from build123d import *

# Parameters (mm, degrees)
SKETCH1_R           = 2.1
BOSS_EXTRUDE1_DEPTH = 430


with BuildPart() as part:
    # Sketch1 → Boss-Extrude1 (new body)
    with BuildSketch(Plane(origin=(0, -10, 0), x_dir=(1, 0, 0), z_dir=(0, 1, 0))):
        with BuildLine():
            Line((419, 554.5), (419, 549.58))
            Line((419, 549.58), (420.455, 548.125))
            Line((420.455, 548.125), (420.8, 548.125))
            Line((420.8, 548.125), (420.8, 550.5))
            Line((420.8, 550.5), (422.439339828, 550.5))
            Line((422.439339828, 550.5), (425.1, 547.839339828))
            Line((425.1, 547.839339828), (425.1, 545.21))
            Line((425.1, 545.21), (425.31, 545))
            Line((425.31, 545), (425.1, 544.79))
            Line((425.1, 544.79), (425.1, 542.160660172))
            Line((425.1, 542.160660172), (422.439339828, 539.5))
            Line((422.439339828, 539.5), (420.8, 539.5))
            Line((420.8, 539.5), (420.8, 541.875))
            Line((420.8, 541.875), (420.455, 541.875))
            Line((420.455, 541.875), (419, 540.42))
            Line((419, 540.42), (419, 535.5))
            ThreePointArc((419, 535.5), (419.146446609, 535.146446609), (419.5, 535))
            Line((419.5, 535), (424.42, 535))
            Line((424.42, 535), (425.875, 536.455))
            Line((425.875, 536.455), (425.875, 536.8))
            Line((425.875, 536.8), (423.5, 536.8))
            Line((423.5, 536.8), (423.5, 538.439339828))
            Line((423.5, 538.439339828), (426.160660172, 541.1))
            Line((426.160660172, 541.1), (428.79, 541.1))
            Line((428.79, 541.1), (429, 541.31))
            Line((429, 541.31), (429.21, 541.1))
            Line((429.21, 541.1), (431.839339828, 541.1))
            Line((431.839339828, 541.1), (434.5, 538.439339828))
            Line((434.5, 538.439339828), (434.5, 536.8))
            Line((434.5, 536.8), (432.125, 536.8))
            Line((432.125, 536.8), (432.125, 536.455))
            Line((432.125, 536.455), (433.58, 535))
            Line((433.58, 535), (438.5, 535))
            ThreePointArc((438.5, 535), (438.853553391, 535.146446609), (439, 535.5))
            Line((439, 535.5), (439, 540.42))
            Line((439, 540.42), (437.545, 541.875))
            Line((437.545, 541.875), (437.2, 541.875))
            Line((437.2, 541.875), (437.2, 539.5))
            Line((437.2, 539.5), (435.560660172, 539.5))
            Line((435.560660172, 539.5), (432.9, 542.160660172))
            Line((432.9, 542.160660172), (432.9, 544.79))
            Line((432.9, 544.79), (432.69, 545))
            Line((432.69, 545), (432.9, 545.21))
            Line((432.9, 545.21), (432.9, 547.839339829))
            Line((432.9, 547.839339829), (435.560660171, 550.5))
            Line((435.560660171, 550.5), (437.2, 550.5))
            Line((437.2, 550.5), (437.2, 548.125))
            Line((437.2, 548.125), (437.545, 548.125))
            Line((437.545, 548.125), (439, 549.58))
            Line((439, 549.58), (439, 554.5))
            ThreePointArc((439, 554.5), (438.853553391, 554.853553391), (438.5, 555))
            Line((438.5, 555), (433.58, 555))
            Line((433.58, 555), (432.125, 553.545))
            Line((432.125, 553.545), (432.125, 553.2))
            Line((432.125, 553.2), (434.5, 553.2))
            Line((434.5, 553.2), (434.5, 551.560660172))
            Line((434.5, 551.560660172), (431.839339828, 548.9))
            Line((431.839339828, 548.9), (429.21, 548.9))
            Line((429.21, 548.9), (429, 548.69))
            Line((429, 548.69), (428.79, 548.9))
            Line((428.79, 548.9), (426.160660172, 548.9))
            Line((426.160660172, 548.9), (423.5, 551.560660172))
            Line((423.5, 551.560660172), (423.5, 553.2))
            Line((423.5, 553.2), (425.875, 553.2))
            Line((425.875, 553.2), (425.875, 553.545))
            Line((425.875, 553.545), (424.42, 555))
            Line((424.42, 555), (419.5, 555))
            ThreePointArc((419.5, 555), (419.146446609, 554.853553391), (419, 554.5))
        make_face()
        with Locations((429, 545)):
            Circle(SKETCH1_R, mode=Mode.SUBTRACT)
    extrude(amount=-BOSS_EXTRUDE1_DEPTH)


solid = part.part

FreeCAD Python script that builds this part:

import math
import FreeCAD as App
import Part
import Sketcher
Q = App.Units.Quantity

doc = App.newDocument("Part")
body = doc.addObject("PartDesign::Body", "Body")

sketch1 = doc.addObject("Sketcher::SketchObject", "Sketch")
body.addObject(sketch1)
sketch1.AttachmentSupport = (doc.XZ_Plane, [""])
sketch1.MapMode = "FlatFace"
sketch1.AttachmentOffset = App.Placement(App.Vector(0, 0, 10), App.Rotation())
sketch1.addGeometry(Part.LineSegment(App.Vector(419, -554.5, 0), App.Vector(419, -549.58, 0)), False)
sketch1.addGeometry(Part.LineSegment(App.Vector(419, -549.58, 0), App.Vector(420.455, -548.125, 0)), False)
sketch1.addGeometry(Part.LineSegment(App.Vector(420.455, -548.125, 0), App.Vector(420.8, -548.125, 0)), False)
sketch1.addGeometry(Part.LineSegment(App.Vector(420.8, -548.125, 0), App.Vector(420.8, -550.5, 0)), False)
sketch1.addGeometry(Part.LineSegment(App.Vector(420.8, -550.5, 0), App.Vector(422.43934, -550.5, 0)), False)
sketch1.addGeometry(Part.LineSegment(App.Vector(422.43934, -550.5, 0), App.Vector(425.1, -547.83934, 0)), False)
sketch1.addGeometry(Part.LineSegment(App.Vector(425.1, -547.83934, 0), App.Vector(425.1, -545.21, 0)), False)
sketch1.addGeometry(Part.LineSegment(App.Vector(425.1, -545.21, 0), App.Vector(425.31, -545, 0)), False)
sketch1.addGeometry(Part.LineSegment(App.Vector(425.31, -545, 0), App.Vector(425.1, -544.79, 0)), False)
sketch1.addGeometry(Part.LineSegment(App.Vector(425.1, -544.79, 0), App.Vector(425.1, -542.16066, 0)), False)
sketch1.addGeometry(Part.LineSegment(App.Vector(425.1, -542.16066, 0), App.Vector(422.43934, -539.5, 0)), False)
sketch1.addGeometry(Part.LineSegment(App.Vector(422.43934, -539.5, 0), App.Vector(420.8, -539.5, 0)), False)
sketch1.addGeometry(Part.LineSegment(App.Vector(420.8, -539.5, 0), App.Vector(420.8, -541.875, 0)), False)
sketch1.addGeometry(Part.LineSegment(App.Vector(420.8, -541.875, 0), App.Vector(420.455, -541.875, 0)), False)
sketch1.addGeometry(Part.LineSegment(App.Vector(420.455, -541.875, 0), App.Vector(419, -540.42, 0)), False)
sketch1.addGeometry(Part.LineSegment(App.Vector(419, -540.42, 0), App.Vector(419, -535.5, 0)), False)
sketch1.addGeometry(Part.ArcOfCircle(Part.Circle(App.Vector(419.5, -535.5, 0), App.Vector(0, 0, 1), 0.5), math.radians(90), math.radians(180)), False)
sketch1.addGeometry(Part.LineSegment(App.Vector(419.5, -535, 0), App.Vector(424.42, -535, 0)), False)
sketch1.addGeometry(Part.LineSegment(App.Vector(424.42, -535, 0), App.Vector(425.875, -536.455, 0)), False)
sketch1.addGeometry(Part.LineSegment(App.Vector(425.875, -536.455, 0), App.Vector(425.875, -536.8, 0)), False)
sketch1.addGeometry(Part.LineSegment(App.Vector(425.875, -536.8, 0), App.Vector(423.5, -536.8, 0)), False)
sketch1.addGeometry(Part.LineSegment(App.Vector(423.5, -536.8, 0), App.Vector(423.5, -538.43934, 0)), False)
sketch1.addGeometry(Part.LineSegment(App.Vector(423.5, -538.43934, 0), App.Vector(426.16066, -541.1, 0)), False)
sketch1.addGeometry(Part.LineSegment(App.Vector(426.16066, -541.1, 0), App.Vector(428.79, -541.1, 0)), False)
sketch1.addGeometry(Part.LineSegment(App.Vector(428.79, -541.1, 0), App.Vector(429, -541.31, 0)), False)
sketch1.addGeometry(Part.LineSegment(App.Vector(429, -541.31, 0), App.Vector(429.21, -541.1, 0)), False)
sketch1.addGeometry(Part.LineSegment(App.Vector(429.21, -541.1, 0), App.Vector(431.83934, -541.1, 0)), False)
sketch1.addGeometry(Part.LineSegment(App.Vector(431.83934, -541.1, 0), App.Vector(434.5, -538.43934, 0)), False)
sketch1.addGeometry(Part.LineSegment(App.Vector(434.5, -538.43934, 0), App.Vector(434.5, -536.8, 0)), False)
sketch1.addGeometry(Part.LineSegment(App.Vector(434.5, -536.8, 0), App.Vector(432.125, -536.8, 0)), False)
sketch1.addGeometry(Part.LineSegment(App.Vector(432.125, -536.8, 0), App.Vector(432.125, -536.455, 0)), False)
sketch1.addGeometry(Part.LineSegment(App.Vector(432.125, -536.455, 0), App.Vector(433.58, -535, 0)), False)
sketch1.addGeometry(Part.LineSegment(App.Vector(433.58, -535, 0), App.Vector(438.5, -535, 0)), False)
sketch1.addGeometry(Part.ArcOfCircle(Part.Circle(App.Vector(438.5, -535.5, 0), App.Vector(0, 0, 1), 0.5), math.radians(0), math.radians(90)), False)
sketch1.addGeometry(Part.LineSegment(App.Vector(439, -535.5, 0), App.Vector(439, -540.42, 0)), False)
sketch1.addGeometry(Part.LineSegment(App.Vector(439, -540.42, 0), App.Vector(437.545, -541.875, 0)), False)
sketch1.addGeometry(Part.LineSegment(App.Vector(437.545, -541.875, 0), App.Vector(437.2, -541.875, 0)), False)
sketch1.addGeometry(Part.LineSegment(App.Vector(437.2, -541.875, 0), App.Vector(437.2, -539.5, 0)), False)
sketch1.addGeometry(Part.LineSegment(App.Vector(437.2, -539.5, 0), App.Vector(435.56066, -539.5, 0)), False)
sketch1.addGeometry(Part.LineSegment(App.Vector(435.56066, -539.5, 0), App.Vector(432.9, -542.16066, 0)), False)
sketch1.addGeometry(Part.LineSegment(App.Vector(432.9, -542.16066, 0), App.Vector(432.9, -544.79, 0)), False)
sketch1.addGeometry(Part.LineSegment(App.Vector(432.9, -544.79, 0), App.Vector(432.69, -545, 0)), False)
sketch1.addGeometry(Part.LineSegment(App.Vector(432.69, -545, 0), App.Vector(432.9, -545.21, 0)), False)
sketch1.addGeometry(Part.LineSegment(App.Vector(432.9, -545.21, 0), App.Vector(432.9, -547.83934, 0)), False)
sketch1.addGeometry(Part.LineSegment(App.Vector(432.9, -547.83934, 0), App.Vector(435.56066, -550.5, 0)), False)
sketch1.addGeometry(Part.LineSegment(App.Vector(435.56066, -550.5, 0), App.Vector(437.2, -550.5, 0)), False)
sketch1.addGeometry(Part.LineSegment(App.Vector(437.2, -550.5, 0), App.Vector(437.2, -548.125, 0)), False)
sketch1.addGeometry(Part.LineSegment(App.Vector(437.2, -548.125, 0), App.Vector(437.545, -548.125, 0)), False)
sketch1.addGeometry(Part.LineSegment(App.Vector(437.545, -548.125, 0), App.Vector(439, -549.58, 0)), False)
sketch1.addGeometry(Part.LineSegment(App.Vector(439, -549.58, 0), App.Vector(439, -554.5, 0)), False)
sketch1.addGeometry(Part.ArcOfCircle(Part.Circle(App.Vector(438.5, -554.5, 0), App.Vector(0, 0, 1), 0.5), math.radians(-90), math.radians(0)), False)
sketch1.addGeometry(Part.LineSegment(App.Vector(438.5, -555, 0), App.Vector(433.58, -555, 0)), False)
sketch1.addGeometry(Part.LineSegment(App.Vector(433.58, -555, 0), App.Vector(432.125, -553.545, 0)), False)
sketch1.addGeometry(Part.LineSegment(App.Vector(432.125, -553.545, 0), App.Vector(432.125, -553.2, 0)), False)
sketch1.addGeometry(Part.LineSegment(App.Vector(432.125, -553.2, 0), App.Vector(434.5, -553.2, 0)), False)
sketch1.addGeometry(Part.LineSegment(App.Vector(434.5, -553.2, 0), App.Vector(434.5, -551.56066, 0)), False)
sketch1.addGeometry(Part.LineSegment(App.Vector(434.5, -551.56066, 0), App.Vector(431.83934, -548.9, 0)), False)
sketch1.addGeometry(Part.LineSegment(App.Vector(431.83934, -548.9, 0), App.Vector(429.21, -548.9, 0)), False)
sketch1.addGeometry(Part.LineSegment(App.Vector(429.21, -548.9, 0), App.Vector(429, -548.69, 0)), False)
sketch1.addGeometry(Part.LineSegment(App.Vector(429, -548.69, 0), App.Vector(428.79, -548.9, 0)), False)
sketch1.addGeometry(Part.LineSegment(App.Vector(428.79, -548.9, 0), App.Vector(426.16066, -548.9, 0)), False)
sketch1.addGeometry(Part.LineSegment(App.Vector(426.16066, -548.9, 0), App.Vector(423.5, -551.56066, 0)), False)
sketch1.addGeometry(Part.LineSegment(App.Vector(423.5, -551.56066, 0), App.Vector(423.5, -553.2, 0)), False)
sketch1.addGeometry(Part.LineSegment(App.Vector(423.5, -553.2, 0), App.Vector(425.875, -553.2, 0)), False)
sketch1.addGeometry(Part.LineSegment(App.Vector(425.875, -553.2, 0), App.Vector(425.875, -553.545, 0)), False)
sketch1.addGeometry(Part.LineSegment(App.Vector(425.875, -553.545, 0), App.Vector(424.42, -555, 0)), False)
sketch1.addGeometry(Part.LineSegment(App.Vector(424.42, -555, 0), App.Vector(419.5, -555, 0)), False)
sketch1.addGeometry(Part.ArcOfCircle(Part.Circle(App.Vector(419.5, -554.5, 0), App.Vector(0, 0, 1), 0.5), math.radians(180), math.radians(270)), False)
sketch1.addGeometry(Part.Circle(App.Vector(429, -545, 0), App.Vector(0, 0, 1), 2.1), False)
sketch1.addConstraint(Sketcher.Constraint("Coincident", 0, 2, 1, 1))
sketch1.addConstraint(Sketcher.Constraint("Coincident", 1, 2, 2, 1))
sketch1.addConstraint(Sketcher.Constraint("Coincident", 2, 2, 3, 1))
sketch1.addConstraint(Sketcher.Constraint("Coincident", 3, 2, 4, 1))
sketch1.addConstraint(Sketcher.Constraint("Coincident", 4, 2, 5, 1))
sketch1.addConstraint(Sketcher.Constraint("Coincident", 5, 2, 6, 1))
sketch1.addConstraint(Sketcher.Constraint("Coincident", 6, 2, 7, 1))
sketch1.addConstraint(Sketcher.Constraint("Coincident", 7, 2, 8, 1))
sketch1.addConstraint(Sketcher.Constraint("Coincident", 8, 2, 9, 1))
sketch1.addConstraint(Sketcher.Constraint("Coincident", 9, 2, 10, 1))
sketch1.addConstraint(Sketcher.Constraint("Coincident", 10, 2, 11, 1))
sketch1.addConstraint(Sketcher.Constraint("Coincident", 11, 2, 12, 1))
sketch1.addConstraint(Sketcher.Constraint("Coincident", 12, 2, 13, 1))
sketch1.addConstraint(Sketcher.Constraint("Coincident", 13, 2, 14, 1))
sketch1.addConstraint(Sketcher.Constraint("Coincident", 14, 2, 15, 1))
sketch1.addConstraint(Sketcher.Constraint("Tangent", 15, 2, 16, 2))
sketch1.addConstraint(Sketcher.Constraint("Tangent", 16, 1, 17, 1))
sketch1.addConstraint(Sketcher.Constraint("Coincident", 17, 2, 18, 1))
sketch1.addConstraint(Sketcher.Constraint("Coincident", 18, 2, 19, 1))
sketch1.addConstraint(Sketcher.Constraint("Coincident", 19, 2, 20, 1))
sketch1.addConstraint(Sketcher.Constraint("Coincident", 20, 2, 21, 1))
sketch1.addConstraint(Sketcher.Constraint("Coincident", 21, 2, 22, 1))
sketch1.addConstraint(Sketcher.Constraint("Coincident", 22, 2, 23, 1))
sketch1.addConstraint(Sketcher.Constraint("Coincident", 23, 2, 24, 1))
sketch1.addConstraint(Sketcher.Constraint("Coincident", 24, 2, 25, 1))
sketch1.addConstraint(Sketcher.Constraint("Coincident", 25, 2, 26, 1))
sketch1.addConstraint(Sketcher.Constraint("Coincident", 26, 2, 27, 1))
sketch1.addConstraint(Sketcher.Constraint("Coincident", 27, 2, 28, 1))
sketch1.addConstraint(Sketcher.Constraint("Coincident", 28, 2, 29, 1))
sketch1.addConstraint(Sketcher.Constraint("Coincident", 29, 2, 30, 1))
sketch1.addConstraint(Sketcher.Constraint("Coincident", 30, 2, 31, 1))
sketch1.addConstraint(Sketcher.Constraint("Coincident", 31, 2, 32, 1))
sketch1.addConstraint(Sketcher.Constraint("Tangent", 32, 2, 33, 2))
sketch1.addConstraint(Sketcher.Constraint("Tangent", 33, 1, 34, 1))
sketch1.addConstraint(Sketcher.Constraint("Coincident", 34, 2, 35, 1))
sketch1.addConstraint(Sketcher.Constraint("Coincident", 35, 2, 36, 1))
sketch1.addConstraint(Sketcher.Constraint("Coincident", 36, 2, 37, 1))
sketch1.addConstraint(Sketcher.Constraint("Coincident", 37, 2, 38, 1))
sketch1.addConstraint(Sketcher.Constraint("Coincident", 38, 2, 39, 1))
sketch1.addConstraint(Sketcher.Constraint("Coincident", 39, 2, 40, 1))
sketch1.addConstraint(Sketcher.Constraint("Coincident", 40, 2, 41, 1))
sketch1.addConstraint(Sketcher.Constraint("Coincident", 41, 2, 42, 1))
sketch1.addConstraint(Sketcher.Constraint("Coincident", 42, 2, 43, 1))
sketch1.addConstraint(Sketcher.Constraint("Coincident", 43, 2, 44, 1))
sketch1.addConstraint(Sketcher.Constraint("Coincident", 44, 2, 45, 1))
sketch1.addConstraint(Sketcher.Constraint("Coincident", 45, 2, 46, 1))
sketch1.addConstraint(Sketcher.Constraint("Coincident", 46, 2, 47, 1))
sketch1.addConstraint(Sketcher.Constraint("Coincident", 47, 2, 48, 1))
sketch1.addConstraint(Sketcher.Constraint("Coincident", 48, 2, 49, 1))
sketch1.addConstraint(Sketcher.Constraint("Tangent", 49, 2, 50, 2))
sketch1.addConstraint(Sketcher.Constraint("Tangent", 50, 1, 51, 1))
sketch1.addConstraint(Sketcher.Constraint("Coincident", 51, 2, 52, 1))
sketch1.addConstraint(Sketcher.Constraint("Coincident", 52, 2, 53, 1))
sketch1.addConstraint(Sketcher.Constraint("Coincident", 53, 2, 54, 1))
sketch1.addConstraint(Sketcher.Constraint("Coincident", 54, 2, 55, 1))
sketch1.addConstraint(Sketcher.Constraint("Coincident", 55, 2, 56, 1))
sketch1.addConstraint(Sketcher.Constraint("Coincident", 56, 2, 57, 1))
sketch1.addConstraint(Sketcher.Constraint("Coincident", 57, 2, 58, 1))
sketch1.addConstraint(Sketcher.Constraint("Coincident", 58, 2, 59, 1))
sketch1.addConstraint(Sketcher.Constraint("Coincident", 59, 2, 60, 1))
sketch1.addConstraint(Sketcher.Constraint("Coincident", 60, 2, 61, 1))
sketch1.addConstraint(Sketcher.Constraint("Coincident", 61, 2, 62, 1))
sketch1.addConstraint(Sketcher.Constraint("Coincident", 62, 2, 63, 1))
sketch1.addConstraint(Sketcher.Constraint("Coincident", 63, 2, 64, 1))
sketch1.addConstraint(Sketcher.Constraint("Coincident", 64, 2, 65, 1))
sketch1.addConstraint(Sketcher.Constraint("Coincident", 65, 2, 66, 1))
sketch1.addConstraint(Sketcher.Constraint("Tangent", 66, 2, 67, 2))
sketch1.addConstraint(Sketcher.Constraint("Tangent", 67, 1, 0, 1))
sketch1.addConstraint(Sketcher.Constraint("Vertical", 0))
sketch1.addConstraint(Sketcher.Constraint("Horizontal", 2))
sketch1.addConstraint(Sketcher.Constraint("Vertical", 3))
sketch1.addConstraint(Sketcher.Constraint("Horizontal", 4))
sketch1.addConstraint(Sketcher.Constraint("Vertical", 6))
sketch1.addConstraint(Sketcher.Constraint("Vertical", 9))
sketch1.addConstraint(Sketcher.Constraint("Horizontal", 11))
sketch1.addConstraint(Sketcher.Constraint("Vertical", 12))
sketch1.addConstraint(Sketcher.Constraint("Horizontal", 13))
sketch1.addConstraint(Sketcher.Constraint("Vertical", 15))
sketch1.addConstraint(Sketcher.Constraint("Horizontal", 17))
sketch1.addConstraint(Sketcher.Constraint("Vertical", 19))
sketch1.addConstraint(Sketcher.Constraint("Horizontal", 20))
sketch1.addConstraint(Sketcher.Constraint("Vertical", 21))
sketch1.addConstraint(Sketcher.Constraint("Horizontal", 23))
sketch1.addConstraint(Sketcher.Constraint("Horizontal", 26))
sketch1.addConstraint(Sketcher.Constraint("Vertical", 28))
sketch1.addConstraint(Sketcher.Constraint("Horizontal", 29))
sketch1.addConstraint(Sketcher.Constraint("Vertical", 30))
sketch1.addConstraint(Sketcher.Constraint("Horizontal", 32))
sketch1.addConstraint(Sketcher.Constraint("Vertical", 34))
sketch1.addConstraint(Sketcher.Constraint("Horizontal", 36))
sketch1.addConstraint(Sketcher.Constraint("Vertical", 37))
sketch1.addConstraint(Sketcher.Constraint("Horizontal", 38))
sketch1.addConstraint(Sketcher.Constraint("Vertical", 40))
sketch1.addConstraint(Sketcher.Constraint("Vertical", 43))
sketch1.addConstraint(Sketcher.Constraint("Horizontal", 45))
sketch1.addConstraint(Sketcher.Constraint("Vertical", 46))
sketch1.addConstraint(Sketcher.Constraint("Horizontal", 47))
sketch1.addConstraint(Sketcher.Constraint("Vertical", 49))
sketch1.addConstraint(Sketcher.Constraint("Horizontal", 51))
sketch1.addConstraint(Sketcher.Constraint("Vertical", 53))
sketch1.addConstraint(Sketcher.Constraint("Horizontal", 54))
sketch1.addConstraint(Sketcher.Constraint("Vertical", 55))
sketch1.addConstraint(Sketcher.Constraint("Horizontal", 57))
sketch1.addConstraint(Sketcher.Constraint("Horizontal", 60))
sketch1.addConstraint(Sketcher.Constraint("Vertical", 62))
sketch1.addConstraint(Sketcher.Constraint("Horizontal", 63))
sketch1.addConstraint(Sketcher.Constraint("Vertical", 64))
sketch1.addConstraint(Sketcher.Constraint("Horizontal", 66))
sketch1.addConstraint(Sketcher.Constraint("Equal", 16, 33))
sketch1.addConstraint(Sketcher.Constraint("Equal", 33, 50))
sketch1.addConstraint(Sketcher.Constraint("Equal", 50, 67))
sketch1.addConstraint(Sketcher.Constraint("Parallel", 1, 5))
sketch1.addConstraint(Sketcher.Constraint("Parallel", 5, 7))
sketch1.addConstraint(Sketcher.Constraint("Perpendicular", 7, 8))
sketch1.addConstraint(Sketcher.Constraint("Parallel", 8, 10))
sketch1.addConstraint(Sketcher.Constraint("Parallel", 10, 14))
sketch1.addConstraint(Sketcher.Constraint("Parallel", 14, 18))
sketch1.addConstraint(Sketcher.Constraint("Parallel", 18, 22))
sketch1.addConstraint(Sketcher.Constraint("Parallel", 22, 24))
sketch1.addConstraint(Sketcher.Constraint("Perpendicular", 24, 25))
sketch1.addConstraint(Sketcher.Constraint("Parallel", 25, 27))
sketch1.addConstraint(Sketcher.Constraint("Parallel", 27, 31))
sketch1.addConstraint(Sketcher.Constraint("Parallel", 31, 35))
sketch1.addConstraint(Sketcher.Constraint("Parallel", 35, 39))
sketch1.addConstraint(Sketcher.Constraint("Parallel", 39, 41))
sketch1.addConstraint(Sketcher.Constraint("Perpendicular", 41, 42))
sketch1.addConstraint(Sketcher.Constraint("Parallel", 42, 44))
sketch1.addConstraint(Sketcher.Constraint("Parallel", 44, 48))
sketch1.addConstraint(Sketcher.Constraint("Parallel", 48, 52))
sketch1.addConstraint(Sketcher.Constraint("Parallel", 52, 56))
sketch1.addConstraint(Sketcher.Constraint("Parallel", 56, 58))
sketch1.addConstraint(Sketcher.Constraint("Perpendicular", 58, 59))
sketch1.addConstraint(Sketcher.Constraint("Parallel", 59, 61))
sketch1.addConstraint(Sketcher.Constraint("Parallel", 61, 65))
sketch1.addConstraint(Sketcher.Constraint("Horizontal", 16, 3, 33, 3))
sketch1.addConstraint(Sketcher.Constraint("Horizontal", 50, 3, 67, 3))
sketch1.addConstraint(Sketcher.Constraint("Horizontal", 68, 3, 7, 2))
sketch1.addConstraint(Sketcher.Constraint("Horizontal", 23, 2, 25, 2))
sketch1.addConstraint(Sketcher.Constraint("Horizontal", 21, 2, 27, 2))
sketch1.addConstraint(Sketcher.Constraint("Horizontal", 20, 2, 28, 2))
sketch1.addConstraint(Sketcher.Constraint("Horizontal", 18, 2, 30, 2))
sketch1.addConstraint(Sketcher.Constraint("Horizontal", 14, 2, 34, 2))
sketch1.addConstraint(Sketcher.Constraint("Horizontal", 13, 2, 35, 2))
sketch1.addConstraint(Sketcher.Constraint("Horizontal", 11, 2, 37, 2))
sketch1.addConstraint(Sketcher.Constraint("Horizontal", 9, 2, 39, 2))
sketch1.addConstraint(Sketcher.Constraint("Horizontal", 8, 2, 40, 2))
sketch1.addConstraint(Sketcher.Constraint("Horizontal", 7, 2, 41, 2))
sketch1.addConstraint(Sketcher.Constraint("Horizontal", 6, 2, 42, 2))
sketch1.addConstraint(Sketcher.Constraint("Horizontal", 5, 2, 43, 2))
sketch1.addConstraint(Sketcher.Constraint("Horizontal", 4, 2, 44, 2))
sketch1.addConstraint(Sketcher.Constraint("Horizontal", 2, 2, 46, 2))
sketch1.addConstraint(Sketcher.Constraint("Horizontal", 0, 2, 48, 2))
sketch1.addConstraint(Sketcher.Constraint("Horizontal", 57, 2, 59, 2))
sketch1.addConstraint(Sketcher.Constraint("Horizontal", 55, 2, 61, 2))
sketch1.addConstraint(Sketcher.Constraint("Horizontal", 54, 2, 62, 2))
sketch1.addConstraint(Sketcher.Constraint("Horizontal", 52, 2, 64, 2))
sketch1.addConstraint(Sketcher.Constraint("Vertical", 33, 3, 50, 3))
sketch1.addConstraint(Sketcher.Constraint("Vertical", 16, 3, 67, 3))
sketch1.addConstraint(Sketcher.Constraint("Vertical", 6, 2, 8, 2))
sketch1.addConstraint(Sketcher.Constraint("Vertical", 4, 2, 10, 2))
sketch1.addConstraint(Sketcher.Constraint("Vertical", 3, 2, 11, 2))
sketch1.addConstraint(Sketcher.Constraint("Vertical", 1, 2, 13, 2))
sketch1.addConstraint(Sketcher.Constraint("Vertical", 68, 3, 24, 2))
sketch1.addConstraint(Sketcher.Constraint("Vertical", 40, 2, 42, 2))
sketch1.addConstraint(Sketcher.Constraint("Vertical", 37, 2, 45, 2))
sketch1.addConstraint(Sketcher.Constraint("Vertical", 31, 2, 51, 2))
sketch1.addConstraint(Sketcher.Constraint("Vertical", 30, 2, 52, 2))
sketch1.addConstraint(Sketcher.Constraint("Vertical", 28, 2, 54, 2))
sketch1.addConstraint(Sketcher.Constraint("Vertical", 26, 2, 56, 2))
sketch1.addConstraint(Sketcher.Constraint("Vertical", 25, 2, 57, 2))
sketch1.addConstraint(Sketcher.Constraint("Vertical", 24, 2, 58, 2))
sketch1.addConstraint(Sketcher.Constraint("Vertical", 22, 2, 60, 2))
sketch1.addConstraint(Sketcher.Constraint("Vertical", 19, 2, 63, 2))
sketch1.addConstraint(Sketcher.Constraint("Equal", 23, 26))
sketch1.addConstraint(Sketcher.Constraint("Equal", 20, 29))
sketch1.addConstraint(Sketcher.Constraint("Equal", 17, 32))
sketch1.addConstraint(Sketcher.Constraint("Equal", 13, 36))
sketch1.addConstraint(Sketcher.Constraint("Equal", 11, 38))
sketch1.addConstraint(Sketcher.Constraint("Equal", 66, 0))
sketch1.addConstraint(Sketcher.Constraint("Equal", 63, 3))
sketch1.addConstraint(Sketcher.Constraint("Equal", 60, 6))
sketch1.addConstraint(Sketcher.Constraint("Equal", 6, 9))
sketch1.addConstraint(Sketcher.Constraint("Equal", 3, 12))
sketch1.addConstraint(Sketcher.Constraint("Equal", 0, 15))
sketch1.addConstraint(Sketcher.Constraint("Equal", 47, 19))
sketch1.addConstraint(Sketcher.Constraint("Equal", 45, 21))
sketch1.addConstraint(Sketcher.Constraint("Equal", 30, 53))
sketch1.addConstraint(Sketcher.Constraint("Equal", 28, 55))
sketch1.addConstraint(Sketcher.Constraint("Equal", 14, 18))
sketch1.addConstraint(Sketcher.Constraint("Equal", 10, 22))
sketch1.addConstraint(Sketcher.Constraint("Equal", 8, 24))
sketch1.addConstraint(Sketcher.Constraint("Diameter", 68, Q("4.2 mm")))
sketch1.addConstraint(Sketcher.Constraint("Radius", 16, Q("0.5 mm")))
sketch1.addConstraint(Sketcher.Constraint("DistanceX", -1, 1, 68, 3, Q("429 mm")))
sketch1.addConstraint(Sketcher.Constraint("DistanceY", 68, 3, -1, 1, Q("545 mm")))
sketch1.addConstraint(Sketcher.Constraint("DistanceX", -1, 1, 0, 2, Q("419 mm")))
sketch1.addConstraint(Sketcher.Constraint("DistanceX", 17, 1, 17, 2, Q("4.92 mm")))
sketch1.addConstraint(Sketcher.Constraint("DistanceX", -1, 1, 2, 2, Q("420.8 mm")))
sketch1.addConstraint(Sketcher.Constraint("DistanceY", 3, 2, -1, 1, Q("550.5 mm")))
sketch1.addConstraint(Sketcher.Constraint("DistanceX", -1, 1, 5, 2, Q("425.1 mm")))
sketch1.addConstraint(Sketcher.Constraint("DistanceX", 2, 1, 2, 2, Q("0.345 mm")))
sketch1.addConstraint(Sketcher.Constraint("DistanceY", 6, 2, -1, 1, Q("545.21 mm")))
sketch1.addConstraint(Sketcher.Constraint("DistanceX", 4, 1, 4, 2, Q("1.63934 mm")))
pad1 = doc.addObject("PartDesign::Pad", "Pad")
body.addObject(pad1)
pad1.Profile = sketch1
pad1.Length = 430

doc.recompute()
